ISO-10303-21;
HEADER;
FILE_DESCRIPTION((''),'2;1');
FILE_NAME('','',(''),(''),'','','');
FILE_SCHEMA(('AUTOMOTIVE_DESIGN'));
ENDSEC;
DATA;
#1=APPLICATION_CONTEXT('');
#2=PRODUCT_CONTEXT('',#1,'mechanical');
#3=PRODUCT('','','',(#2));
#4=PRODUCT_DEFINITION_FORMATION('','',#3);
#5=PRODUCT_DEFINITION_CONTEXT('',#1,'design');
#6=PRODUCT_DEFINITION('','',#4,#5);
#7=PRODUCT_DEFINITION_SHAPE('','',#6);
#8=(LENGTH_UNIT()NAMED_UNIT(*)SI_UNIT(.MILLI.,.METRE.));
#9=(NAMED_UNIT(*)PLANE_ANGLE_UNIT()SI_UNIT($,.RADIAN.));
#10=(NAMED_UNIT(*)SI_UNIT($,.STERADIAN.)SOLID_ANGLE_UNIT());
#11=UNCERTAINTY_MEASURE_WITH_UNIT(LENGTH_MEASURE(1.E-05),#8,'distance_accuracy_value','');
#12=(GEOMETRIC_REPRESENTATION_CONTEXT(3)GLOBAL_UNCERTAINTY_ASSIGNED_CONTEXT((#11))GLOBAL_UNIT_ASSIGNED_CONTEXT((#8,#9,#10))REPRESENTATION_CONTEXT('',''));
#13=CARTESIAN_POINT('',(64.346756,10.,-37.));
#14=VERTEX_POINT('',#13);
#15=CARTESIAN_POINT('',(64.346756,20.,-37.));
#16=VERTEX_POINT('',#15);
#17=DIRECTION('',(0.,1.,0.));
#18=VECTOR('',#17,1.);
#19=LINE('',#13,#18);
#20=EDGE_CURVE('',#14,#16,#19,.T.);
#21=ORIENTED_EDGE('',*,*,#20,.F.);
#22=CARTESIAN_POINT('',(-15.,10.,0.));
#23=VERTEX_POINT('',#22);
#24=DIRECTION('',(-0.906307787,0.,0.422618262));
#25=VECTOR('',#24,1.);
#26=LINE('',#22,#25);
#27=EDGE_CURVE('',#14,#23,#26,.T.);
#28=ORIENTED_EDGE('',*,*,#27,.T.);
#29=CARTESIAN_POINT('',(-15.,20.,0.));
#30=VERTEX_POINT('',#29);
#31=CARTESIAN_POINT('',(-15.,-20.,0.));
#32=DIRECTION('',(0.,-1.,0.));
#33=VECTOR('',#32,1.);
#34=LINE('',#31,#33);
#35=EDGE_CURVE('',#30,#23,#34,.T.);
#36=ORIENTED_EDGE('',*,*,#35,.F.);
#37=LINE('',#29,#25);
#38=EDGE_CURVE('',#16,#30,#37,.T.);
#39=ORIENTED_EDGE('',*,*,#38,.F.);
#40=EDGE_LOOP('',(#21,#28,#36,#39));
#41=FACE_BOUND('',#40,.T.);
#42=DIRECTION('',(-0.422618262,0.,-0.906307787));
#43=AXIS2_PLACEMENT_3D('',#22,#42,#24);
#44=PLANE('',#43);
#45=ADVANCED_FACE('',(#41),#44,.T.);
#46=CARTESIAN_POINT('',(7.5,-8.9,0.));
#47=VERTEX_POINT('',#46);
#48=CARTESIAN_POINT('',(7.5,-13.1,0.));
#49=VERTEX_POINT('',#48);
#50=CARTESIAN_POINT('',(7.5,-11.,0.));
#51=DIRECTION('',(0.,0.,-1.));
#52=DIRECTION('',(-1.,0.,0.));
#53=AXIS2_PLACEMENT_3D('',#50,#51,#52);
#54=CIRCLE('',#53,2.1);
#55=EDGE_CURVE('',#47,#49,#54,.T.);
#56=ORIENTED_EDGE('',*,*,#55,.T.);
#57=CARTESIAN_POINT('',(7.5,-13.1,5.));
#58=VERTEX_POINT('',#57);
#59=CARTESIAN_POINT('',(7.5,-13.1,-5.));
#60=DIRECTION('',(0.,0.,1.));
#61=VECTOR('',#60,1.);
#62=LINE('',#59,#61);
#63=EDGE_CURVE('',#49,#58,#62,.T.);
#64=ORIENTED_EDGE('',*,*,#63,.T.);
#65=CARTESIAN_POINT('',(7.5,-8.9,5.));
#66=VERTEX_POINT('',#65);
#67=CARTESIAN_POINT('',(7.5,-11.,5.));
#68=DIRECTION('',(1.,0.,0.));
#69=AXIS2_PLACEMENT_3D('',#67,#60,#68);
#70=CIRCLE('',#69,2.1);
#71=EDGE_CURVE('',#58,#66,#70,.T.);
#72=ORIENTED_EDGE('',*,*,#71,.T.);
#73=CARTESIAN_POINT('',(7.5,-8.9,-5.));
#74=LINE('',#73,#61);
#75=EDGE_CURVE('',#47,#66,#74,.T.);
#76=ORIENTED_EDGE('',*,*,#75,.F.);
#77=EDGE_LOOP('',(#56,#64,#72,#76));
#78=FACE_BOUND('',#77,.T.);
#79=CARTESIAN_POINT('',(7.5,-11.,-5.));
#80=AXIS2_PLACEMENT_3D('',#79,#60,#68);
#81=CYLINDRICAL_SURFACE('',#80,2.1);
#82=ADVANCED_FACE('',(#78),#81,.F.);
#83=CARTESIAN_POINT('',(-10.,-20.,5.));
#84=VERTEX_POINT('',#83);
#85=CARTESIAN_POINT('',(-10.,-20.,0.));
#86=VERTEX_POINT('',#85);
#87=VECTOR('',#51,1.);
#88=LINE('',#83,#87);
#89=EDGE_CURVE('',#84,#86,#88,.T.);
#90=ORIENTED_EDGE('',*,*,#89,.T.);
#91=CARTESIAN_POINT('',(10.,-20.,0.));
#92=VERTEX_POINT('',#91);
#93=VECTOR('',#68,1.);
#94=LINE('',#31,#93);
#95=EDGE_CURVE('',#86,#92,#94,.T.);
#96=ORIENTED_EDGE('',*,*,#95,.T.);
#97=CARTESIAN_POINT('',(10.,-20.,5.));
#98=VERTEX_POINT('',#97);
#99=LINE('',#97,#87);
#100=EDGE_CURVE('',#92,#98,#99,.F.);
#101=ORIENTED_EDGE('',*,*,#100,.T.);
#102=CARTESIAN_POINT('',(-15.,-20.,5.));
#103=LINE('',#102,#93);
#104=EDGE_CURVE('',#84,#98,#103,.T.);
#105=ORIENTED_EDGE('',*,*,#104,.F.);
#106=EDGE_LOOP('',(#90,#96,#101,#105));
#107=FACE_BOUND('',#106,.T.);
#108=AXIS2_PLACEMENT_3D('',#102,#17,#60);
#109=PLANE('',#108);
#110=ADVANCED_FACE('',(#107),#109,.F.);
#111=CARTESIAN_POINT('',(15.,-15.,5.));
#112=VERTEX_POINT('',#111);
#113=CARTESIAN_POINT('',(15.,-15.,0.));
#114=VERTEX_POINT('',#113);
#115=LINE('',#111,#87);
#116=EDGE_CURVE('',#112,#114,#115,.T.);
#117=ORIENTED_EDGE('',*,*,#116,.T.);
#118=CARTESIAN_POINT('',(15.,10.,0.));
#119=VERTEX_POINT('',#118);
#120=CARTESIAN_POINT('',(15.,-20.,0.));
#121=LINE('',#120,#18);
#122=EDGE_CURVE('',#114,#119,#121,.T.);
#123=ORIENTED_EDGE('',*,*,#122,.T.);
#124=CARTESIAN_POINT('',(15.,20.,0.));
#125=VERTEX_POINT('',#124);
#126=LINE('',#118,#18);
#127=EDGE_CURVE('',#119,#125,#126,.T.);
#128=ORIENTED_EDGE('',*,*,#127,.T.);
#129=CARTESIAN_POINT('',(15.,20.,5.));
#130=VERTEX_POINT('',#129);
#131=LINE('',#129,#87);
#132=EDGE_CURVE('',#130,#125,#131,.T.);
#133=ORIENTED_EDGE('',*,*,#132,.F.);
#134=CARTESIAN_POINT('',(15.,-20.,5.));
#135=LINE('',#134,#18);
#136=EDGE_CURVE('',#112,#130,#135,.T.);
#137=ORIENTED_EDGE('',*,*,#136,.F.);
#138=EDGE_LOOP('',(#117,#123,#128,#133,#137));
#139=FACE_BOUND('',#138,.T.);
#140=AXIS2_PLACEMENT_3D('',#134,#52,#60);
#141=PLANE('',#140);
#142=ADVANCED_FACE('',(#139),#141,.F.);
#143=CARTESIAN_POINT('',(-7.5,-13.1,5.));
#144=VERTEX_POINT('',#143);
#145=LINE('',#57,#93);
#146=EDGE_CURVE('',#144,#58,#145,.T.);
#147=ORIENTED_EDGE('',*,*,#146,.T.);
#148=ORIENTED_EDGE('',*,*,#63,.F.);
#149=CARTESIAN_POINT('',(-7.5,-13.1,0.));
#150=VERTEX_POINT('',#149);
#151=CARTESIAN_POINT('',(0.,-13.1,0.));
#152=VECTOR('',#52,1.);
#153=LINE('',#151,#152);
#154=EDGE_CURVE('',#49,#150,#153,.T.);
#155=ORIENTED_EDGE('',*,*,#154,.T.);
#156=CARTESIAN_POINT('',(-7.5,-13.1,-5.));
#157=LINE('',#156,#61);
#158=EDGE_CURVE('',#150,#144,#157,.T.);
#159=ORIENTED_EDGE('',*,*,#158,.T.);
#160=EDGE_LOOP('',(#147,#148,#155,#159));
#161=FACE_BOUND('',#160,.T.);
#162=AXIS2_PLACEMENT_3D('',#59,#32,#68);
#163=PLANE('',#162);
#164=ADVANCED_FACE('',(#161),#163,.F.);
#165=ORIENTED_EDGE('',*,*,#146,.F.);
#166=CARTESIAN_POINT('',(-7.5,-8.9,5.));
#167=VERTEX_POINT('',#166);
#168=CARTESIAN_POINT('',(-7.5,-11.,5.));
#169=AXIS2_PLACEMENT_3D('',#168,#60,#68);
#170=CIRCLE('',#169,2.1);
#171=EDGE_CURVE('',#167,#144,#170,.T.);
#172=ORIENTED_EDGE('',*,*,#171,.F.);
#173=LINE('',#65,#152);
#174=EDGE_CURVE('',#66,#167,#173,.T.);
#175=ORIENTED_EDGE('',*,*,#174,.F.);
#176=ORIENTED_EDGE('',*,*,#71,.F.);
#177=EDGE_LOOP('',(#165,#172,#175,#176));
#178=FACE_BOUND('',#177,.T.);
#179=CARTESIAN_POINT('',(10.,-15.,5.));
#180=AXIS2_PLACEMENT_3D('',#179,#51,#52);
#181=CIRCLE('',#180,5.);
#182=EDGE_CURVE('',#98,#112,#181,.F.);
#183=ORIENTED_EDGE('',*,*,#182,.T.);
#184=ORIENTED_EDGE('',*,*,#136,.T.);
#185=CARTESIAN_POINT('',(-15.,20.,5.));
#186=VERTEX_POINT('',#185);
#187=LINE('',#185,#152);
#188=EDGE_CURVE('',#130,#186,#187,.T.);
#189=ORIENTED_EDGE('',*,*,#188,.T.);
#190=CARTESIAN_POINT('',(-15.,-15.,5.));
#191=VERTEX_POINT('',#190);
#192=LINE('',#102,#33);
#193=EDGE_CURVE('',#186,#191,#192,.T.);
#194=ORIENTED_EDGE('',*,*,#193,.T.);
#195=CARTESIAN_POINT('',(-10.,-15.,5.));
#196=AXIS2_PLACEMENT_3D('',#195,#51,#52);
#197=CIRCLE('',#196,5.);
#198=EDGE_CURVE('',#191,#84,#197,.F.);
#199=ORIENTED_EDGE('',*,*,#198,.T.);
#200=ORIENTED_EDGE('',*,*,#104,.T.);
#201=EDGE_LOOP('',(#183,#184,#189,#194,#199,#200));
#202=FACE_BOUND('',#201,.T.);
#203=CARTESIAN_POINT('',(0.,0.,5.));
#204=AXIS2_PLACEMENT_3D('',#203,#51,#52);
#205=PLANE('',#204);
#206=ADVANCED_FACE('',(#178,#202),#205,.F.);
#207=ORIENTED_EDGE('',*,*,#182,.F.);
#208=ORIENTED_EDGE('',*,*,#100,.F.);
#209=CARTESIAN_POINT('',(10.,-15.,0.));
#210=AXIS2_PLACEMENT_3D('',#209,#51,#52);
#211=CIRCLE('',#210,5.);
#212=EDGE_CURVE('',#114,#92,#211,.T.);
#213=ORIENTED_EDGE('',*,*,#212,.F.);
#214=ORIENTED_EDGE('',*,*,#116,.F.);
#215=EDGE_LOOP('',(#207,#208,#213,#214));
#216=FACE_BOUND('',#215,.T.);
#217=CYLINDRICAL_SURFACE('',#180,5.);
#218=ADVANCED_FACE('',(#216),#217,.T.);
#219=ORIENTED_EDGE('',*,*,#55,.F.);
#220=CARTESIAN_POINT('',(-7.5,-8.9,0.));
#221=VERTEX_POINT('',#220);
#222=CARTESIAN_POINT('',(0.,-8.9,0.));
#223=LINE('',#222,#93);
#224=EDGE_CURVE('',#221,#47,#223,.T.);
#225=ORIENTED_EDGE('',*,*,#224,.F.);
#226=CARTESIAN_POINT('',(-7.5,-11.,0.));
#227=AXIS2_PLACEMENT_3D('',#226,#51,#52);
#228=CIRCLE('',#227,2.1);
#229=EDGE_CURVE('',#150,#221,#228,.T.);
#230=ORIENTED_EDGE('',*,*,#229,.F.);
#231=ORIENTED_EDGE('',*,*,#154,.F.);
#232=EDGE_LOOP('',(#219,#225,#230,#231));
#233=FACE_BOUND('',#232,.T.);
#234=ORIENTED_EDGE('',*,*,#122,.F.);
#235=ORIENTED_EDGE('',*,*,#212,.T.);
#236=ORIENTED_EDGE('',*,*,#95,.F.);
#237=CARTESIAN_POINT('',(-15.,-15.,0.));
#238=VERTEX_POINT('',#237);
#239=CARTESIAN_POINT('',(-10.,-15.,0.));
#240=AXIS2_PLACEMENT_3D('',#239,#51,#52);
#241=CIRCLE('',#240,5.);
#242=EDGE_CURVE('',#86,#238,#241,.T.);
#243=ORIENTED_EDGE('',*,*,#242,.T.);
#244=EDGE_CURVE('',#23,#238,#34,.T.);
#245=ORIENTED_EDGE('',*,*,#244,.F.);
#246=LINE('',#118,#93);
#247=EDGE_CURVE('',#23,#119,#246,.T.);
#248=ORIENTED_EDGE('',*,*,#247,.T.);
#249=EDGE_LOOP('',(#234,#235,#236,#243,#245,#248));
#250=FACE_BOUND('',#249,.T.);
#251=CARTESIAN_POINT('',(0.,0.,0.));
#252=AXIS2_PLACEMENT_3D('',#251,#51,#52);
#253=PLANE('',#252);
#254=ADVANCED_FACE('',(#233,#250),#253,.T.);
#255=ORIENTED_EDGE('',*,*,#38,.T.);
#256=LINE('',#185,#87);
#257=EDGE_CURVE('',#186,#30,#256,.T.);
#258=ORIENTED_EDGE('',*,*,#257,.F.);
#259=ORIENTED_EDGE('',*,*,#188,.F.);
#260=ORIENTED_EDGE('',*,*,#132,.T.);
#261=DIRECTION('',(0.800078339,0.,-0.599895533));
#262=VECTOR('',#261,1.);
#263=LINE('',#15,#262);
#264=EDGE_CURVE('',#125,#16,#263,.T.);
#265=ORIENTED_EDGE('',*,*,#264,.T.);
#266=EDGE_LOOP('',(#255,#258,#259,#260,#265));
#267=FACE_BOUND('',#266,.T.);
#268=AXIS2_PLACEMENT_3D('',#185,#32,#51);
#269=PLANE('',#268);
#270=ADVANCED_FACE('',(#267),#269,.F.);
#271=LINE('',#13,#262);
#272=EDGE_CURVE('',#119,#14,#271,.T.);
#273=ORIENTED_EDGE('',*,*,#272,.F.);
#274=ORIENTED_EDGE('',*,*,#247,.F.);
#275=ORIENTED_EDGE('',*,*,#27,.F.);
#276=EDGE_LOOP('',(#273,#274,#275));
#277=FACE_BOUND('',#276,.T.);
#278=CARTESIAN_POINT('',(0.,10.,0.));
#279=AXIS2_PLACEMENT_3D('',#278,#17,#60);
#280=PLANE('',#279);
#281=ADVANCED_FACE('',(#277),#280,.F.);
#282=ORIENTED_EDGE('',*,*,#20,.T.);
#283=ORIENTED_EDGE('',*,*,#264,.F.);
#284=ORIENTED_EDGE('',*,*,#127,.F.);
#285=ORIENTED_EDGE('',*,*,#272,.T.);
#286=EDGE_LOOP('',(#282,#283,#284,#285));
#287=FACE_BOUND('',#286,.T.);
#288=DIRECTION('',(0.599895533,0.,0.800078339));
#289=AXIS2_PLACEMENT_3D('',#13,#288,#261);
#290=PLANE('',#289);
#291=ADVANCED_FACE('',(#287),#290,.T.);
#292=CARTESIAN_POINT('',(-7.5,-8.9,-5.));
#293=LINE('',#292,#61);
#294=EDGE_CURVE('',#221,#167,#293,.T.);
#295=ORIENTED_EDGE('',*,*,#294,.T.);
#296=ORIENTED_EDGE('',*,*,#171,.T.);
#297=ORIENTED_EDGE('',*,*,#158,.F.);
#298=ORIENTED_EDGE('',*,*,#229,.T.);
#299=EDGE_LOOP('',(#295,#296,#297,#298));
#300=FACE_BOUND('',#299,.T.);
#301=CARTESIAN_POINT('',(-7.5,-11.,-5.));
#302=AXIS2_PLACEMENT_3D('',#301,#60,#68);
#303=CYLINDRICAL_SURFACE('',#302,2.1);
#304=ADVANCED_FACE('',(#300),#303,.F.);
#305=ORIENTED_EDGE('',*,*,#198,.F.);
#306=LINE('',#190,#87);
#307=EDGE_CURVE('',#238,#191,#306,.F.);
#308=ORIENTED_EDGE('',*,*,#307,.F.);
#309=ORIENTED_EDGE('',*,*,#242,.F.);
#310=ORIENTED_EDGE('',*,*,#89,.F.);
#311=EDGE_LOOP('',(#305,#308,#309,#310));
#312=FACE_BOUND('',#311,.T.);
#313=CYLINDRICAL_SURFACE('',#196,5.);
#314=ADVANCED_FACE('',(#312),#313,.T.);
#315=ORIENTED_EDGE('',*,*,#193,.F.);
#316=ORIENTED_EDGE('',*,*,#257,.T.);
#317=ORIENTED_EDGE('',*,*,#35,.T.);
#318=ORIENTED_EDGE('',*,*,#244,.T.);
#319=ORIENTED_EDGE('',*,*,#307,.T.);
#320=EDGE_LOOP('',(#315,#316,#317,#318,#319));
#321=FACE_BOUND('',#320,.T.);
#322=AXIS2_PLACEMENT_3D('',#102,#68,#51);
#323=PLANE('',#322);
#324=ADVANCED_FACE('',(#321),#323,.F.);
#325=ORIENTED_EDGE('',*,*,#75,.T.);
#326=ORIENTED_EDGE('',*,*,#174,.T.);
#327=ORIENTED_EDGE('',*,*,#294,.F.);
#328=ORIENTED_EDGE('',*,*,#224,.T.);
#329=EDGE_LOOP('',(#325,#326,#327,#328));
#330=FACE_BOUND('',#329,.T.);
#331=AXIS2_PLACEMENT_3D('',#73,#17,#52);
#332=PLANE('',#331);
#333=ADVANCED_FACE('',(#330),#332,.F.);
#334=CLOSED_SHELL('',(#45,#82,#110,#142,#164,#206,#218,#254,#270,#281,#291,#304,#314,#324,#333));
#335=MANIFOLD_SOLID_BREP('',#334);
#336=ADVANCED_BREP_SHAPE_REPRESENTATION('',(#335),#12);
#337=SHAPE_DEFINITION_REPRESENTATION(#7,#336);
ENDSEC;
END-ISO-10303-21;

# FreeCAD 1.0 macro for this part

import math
import FreeCAD as App
import Part
import Sketcher
Q = App.Units.Quantity


def edges_at(feature, points):
    """Names of the edges that pass closest to the given points."""
    edges = feature.Shape.Edges
    near = lambda p: min(range(len(edges)), key=lambda i: edges[i].distToShape(Part.Vertex(*p))[0])
    return sorted({f"Edge{near(p) + 1}" for p in points})


def add_polygon(sketch, points):
    """Adds a closed chain of lines whose ends are joined by coincident constraints."""
    first, n = sketch.GeometryCount, len(points)
    for a, b in zip(points, points[1:] + points[:1]):
        sketch.addGeometry(Part.LineSegment(App.Vector(*a, 0), App.Vector(*b, 0)), False)
    for i in range(n):
        sketch.addConstraint(Sketcher.Constraint("Coincident", first + i, 2, first + (i + 1) % n, 1))

doc = App.newDocument("Part")
body = doc.addObject("PartDesign::Body", "Body")

# Sketch on XY plane
sketch1 = body.newObject("Sketcher::SketchObject", "Sketch")
sketch1.AttachmentSupport = (doc.getObject("XY_Plane"), [""])
sketch1.MapMode = "FlatFace"
add_polygon(sketch1, [(-15, 20), (-15, -20), (15, -20), (15, 20)])  # lines 0-3
sketch1.addConstraint(Sketcher.Constraint("Vertical", 0))
sketch1.addConstraint(Sketcher.Constraint("Horizontal", 1))
sketch1.addConstraint(Sketcher.Constraint("Vertical", 2))
sketch1.addConstraint(Sketcher.Constraint("Horizontal", 3))
sketch1.addConstraint(Sketcher.Constraint("Symmetric", 0, 2, 2, 2, -1, 1))
sketch1.addConstraint(Sketcher.Constraint("DistanceX", 1, 1, 1, 2, 30.0))
sketch1.addConstraint(Sketcher.Constraint("DistanceY", 0, 2, 0, 1, 40.0))
pad1 = body.newObject("PartDesign::Pad", "Pad")
pad1.Profile = sketch1
pad1.Length = 5

# Sketch on XZ plane
sketch2 = body.newObject("Sketcher::SketchObject", "Sketch001")
sketch2.AttachmentSupport = (doc.getObject("XZ_Plane"), [""])
sketch2.MapMode = "FlatFace"
sketch2.AttachmentOffset = App.Placement(App.Vector(0, 0, -20), App.Rotation())
add_polygon(sketch2, [(64, -37), (-15, 0), (15, 0)])  # lines 0-2
sketch2.addConstraint(Sketcher.Constraint("Horizontal", 1))
sketch2.addConstraint(Sketcher.Constraint("Symmetric", 0, 2, 1, 2, -1, 1))
sketch2.addConstraint(Sketcher.Constraint("DistanceX", 1, 1, 1, 2, 30.0))
sketch2.addConstraint(Sketcher.Constraint("Angle", 0, Q("155 deg")))
sketch2.addConstraint(Sketcher.Constraint("DistanceY", 2, 2, -1, 1, 37.0))
pad2 = body.newObject("PartDesign::Pad", "Pad001")
pad2.Profile = sketch2
pad2.Length = 10
doc.recompute()

fillet = body.newObject("PartDesign::Fillet", "Fillet")
fillet.Base = (pad2, edges_at(pad2, [(15, -20, 2.5), (-15, -20, 2.5)]))
fillet.Radius = 5

# Sketch on XY plane
sketch3 = body.newObject("Sketcher::SketchObject", "Sketch002")
sketch3.AttachmentSupport = (doc.getObject("XY_Plane"), [""])
sketch3.MapMode = "FlatFace"
sketch3.AttachmentOffset = App.Placement(App.Vector(0, 0, 5), App.Rotation())
sketch3.addGeometry(Part.LineSegment(App.Vector(-7.5, -13.1, 0), App.Vector(7.5, -13.1, 0)), False)
sketch3.addGeometry(Part.ArcOfCircle(Part.Circle(App.Vector(7.5, -11, 0), App.Vector(0, 0, 1), 2.1), math.radians(-90), math.radians(90)), False)
sketch3.addGeometry(Part.LineSegment(App.Vector(7.5, -8.9, 0), App.Vector(-7.5, -8.9, 0)), False)
sketch3.addGeometry(Part.ArcOfCircle(Part.Circle(App.Vector(-7.5, -11, 0), App.Vector(0, 0, 1), 2.1), math.radians(90), math.radians(270)), False)
sketch3.addConstraint(Sketcher.Constraint("Tangent", 0, 2, 1, 1))
sketch3.addConstraint(Sketcher.Constraint("Tangent", 1, 2, 2, 1))
sketch3.addConstraint(Sketcher.Constraint("Tangent", 2, 2, 3, 1))
sketch3.addConstraint(Sketcher.Constraint("Tangent", 3, 2, 0, 1))
sketch3.addConstraint(Sketcher.Constraint("Horizontal", 0))
sketch3.addConstraint(Sketcher.Constraint("Horizontal", 2))
sketch3.addConstraint(Sketcher.Constraint("Radius", 1, 2.1))
sketch3.addConstraint(Sketcher.Constraint("DistanceX", 0, 1, 0, 2, 15.0))
sketch3.addConstraint(Sketcher.Constraint("DistanceY", 1, 3, -1, 1, 11.0))
sketch3.addConstraint(Sketcher.Constraint("DistanceX", -1, 1, 1, 3, 7.5))
pocket1 = body.newObject("PartDesign::Pocket", "Pocket")
pocket1.Profile = sketch3
pocket1.Length = 10

doc.recompute()
